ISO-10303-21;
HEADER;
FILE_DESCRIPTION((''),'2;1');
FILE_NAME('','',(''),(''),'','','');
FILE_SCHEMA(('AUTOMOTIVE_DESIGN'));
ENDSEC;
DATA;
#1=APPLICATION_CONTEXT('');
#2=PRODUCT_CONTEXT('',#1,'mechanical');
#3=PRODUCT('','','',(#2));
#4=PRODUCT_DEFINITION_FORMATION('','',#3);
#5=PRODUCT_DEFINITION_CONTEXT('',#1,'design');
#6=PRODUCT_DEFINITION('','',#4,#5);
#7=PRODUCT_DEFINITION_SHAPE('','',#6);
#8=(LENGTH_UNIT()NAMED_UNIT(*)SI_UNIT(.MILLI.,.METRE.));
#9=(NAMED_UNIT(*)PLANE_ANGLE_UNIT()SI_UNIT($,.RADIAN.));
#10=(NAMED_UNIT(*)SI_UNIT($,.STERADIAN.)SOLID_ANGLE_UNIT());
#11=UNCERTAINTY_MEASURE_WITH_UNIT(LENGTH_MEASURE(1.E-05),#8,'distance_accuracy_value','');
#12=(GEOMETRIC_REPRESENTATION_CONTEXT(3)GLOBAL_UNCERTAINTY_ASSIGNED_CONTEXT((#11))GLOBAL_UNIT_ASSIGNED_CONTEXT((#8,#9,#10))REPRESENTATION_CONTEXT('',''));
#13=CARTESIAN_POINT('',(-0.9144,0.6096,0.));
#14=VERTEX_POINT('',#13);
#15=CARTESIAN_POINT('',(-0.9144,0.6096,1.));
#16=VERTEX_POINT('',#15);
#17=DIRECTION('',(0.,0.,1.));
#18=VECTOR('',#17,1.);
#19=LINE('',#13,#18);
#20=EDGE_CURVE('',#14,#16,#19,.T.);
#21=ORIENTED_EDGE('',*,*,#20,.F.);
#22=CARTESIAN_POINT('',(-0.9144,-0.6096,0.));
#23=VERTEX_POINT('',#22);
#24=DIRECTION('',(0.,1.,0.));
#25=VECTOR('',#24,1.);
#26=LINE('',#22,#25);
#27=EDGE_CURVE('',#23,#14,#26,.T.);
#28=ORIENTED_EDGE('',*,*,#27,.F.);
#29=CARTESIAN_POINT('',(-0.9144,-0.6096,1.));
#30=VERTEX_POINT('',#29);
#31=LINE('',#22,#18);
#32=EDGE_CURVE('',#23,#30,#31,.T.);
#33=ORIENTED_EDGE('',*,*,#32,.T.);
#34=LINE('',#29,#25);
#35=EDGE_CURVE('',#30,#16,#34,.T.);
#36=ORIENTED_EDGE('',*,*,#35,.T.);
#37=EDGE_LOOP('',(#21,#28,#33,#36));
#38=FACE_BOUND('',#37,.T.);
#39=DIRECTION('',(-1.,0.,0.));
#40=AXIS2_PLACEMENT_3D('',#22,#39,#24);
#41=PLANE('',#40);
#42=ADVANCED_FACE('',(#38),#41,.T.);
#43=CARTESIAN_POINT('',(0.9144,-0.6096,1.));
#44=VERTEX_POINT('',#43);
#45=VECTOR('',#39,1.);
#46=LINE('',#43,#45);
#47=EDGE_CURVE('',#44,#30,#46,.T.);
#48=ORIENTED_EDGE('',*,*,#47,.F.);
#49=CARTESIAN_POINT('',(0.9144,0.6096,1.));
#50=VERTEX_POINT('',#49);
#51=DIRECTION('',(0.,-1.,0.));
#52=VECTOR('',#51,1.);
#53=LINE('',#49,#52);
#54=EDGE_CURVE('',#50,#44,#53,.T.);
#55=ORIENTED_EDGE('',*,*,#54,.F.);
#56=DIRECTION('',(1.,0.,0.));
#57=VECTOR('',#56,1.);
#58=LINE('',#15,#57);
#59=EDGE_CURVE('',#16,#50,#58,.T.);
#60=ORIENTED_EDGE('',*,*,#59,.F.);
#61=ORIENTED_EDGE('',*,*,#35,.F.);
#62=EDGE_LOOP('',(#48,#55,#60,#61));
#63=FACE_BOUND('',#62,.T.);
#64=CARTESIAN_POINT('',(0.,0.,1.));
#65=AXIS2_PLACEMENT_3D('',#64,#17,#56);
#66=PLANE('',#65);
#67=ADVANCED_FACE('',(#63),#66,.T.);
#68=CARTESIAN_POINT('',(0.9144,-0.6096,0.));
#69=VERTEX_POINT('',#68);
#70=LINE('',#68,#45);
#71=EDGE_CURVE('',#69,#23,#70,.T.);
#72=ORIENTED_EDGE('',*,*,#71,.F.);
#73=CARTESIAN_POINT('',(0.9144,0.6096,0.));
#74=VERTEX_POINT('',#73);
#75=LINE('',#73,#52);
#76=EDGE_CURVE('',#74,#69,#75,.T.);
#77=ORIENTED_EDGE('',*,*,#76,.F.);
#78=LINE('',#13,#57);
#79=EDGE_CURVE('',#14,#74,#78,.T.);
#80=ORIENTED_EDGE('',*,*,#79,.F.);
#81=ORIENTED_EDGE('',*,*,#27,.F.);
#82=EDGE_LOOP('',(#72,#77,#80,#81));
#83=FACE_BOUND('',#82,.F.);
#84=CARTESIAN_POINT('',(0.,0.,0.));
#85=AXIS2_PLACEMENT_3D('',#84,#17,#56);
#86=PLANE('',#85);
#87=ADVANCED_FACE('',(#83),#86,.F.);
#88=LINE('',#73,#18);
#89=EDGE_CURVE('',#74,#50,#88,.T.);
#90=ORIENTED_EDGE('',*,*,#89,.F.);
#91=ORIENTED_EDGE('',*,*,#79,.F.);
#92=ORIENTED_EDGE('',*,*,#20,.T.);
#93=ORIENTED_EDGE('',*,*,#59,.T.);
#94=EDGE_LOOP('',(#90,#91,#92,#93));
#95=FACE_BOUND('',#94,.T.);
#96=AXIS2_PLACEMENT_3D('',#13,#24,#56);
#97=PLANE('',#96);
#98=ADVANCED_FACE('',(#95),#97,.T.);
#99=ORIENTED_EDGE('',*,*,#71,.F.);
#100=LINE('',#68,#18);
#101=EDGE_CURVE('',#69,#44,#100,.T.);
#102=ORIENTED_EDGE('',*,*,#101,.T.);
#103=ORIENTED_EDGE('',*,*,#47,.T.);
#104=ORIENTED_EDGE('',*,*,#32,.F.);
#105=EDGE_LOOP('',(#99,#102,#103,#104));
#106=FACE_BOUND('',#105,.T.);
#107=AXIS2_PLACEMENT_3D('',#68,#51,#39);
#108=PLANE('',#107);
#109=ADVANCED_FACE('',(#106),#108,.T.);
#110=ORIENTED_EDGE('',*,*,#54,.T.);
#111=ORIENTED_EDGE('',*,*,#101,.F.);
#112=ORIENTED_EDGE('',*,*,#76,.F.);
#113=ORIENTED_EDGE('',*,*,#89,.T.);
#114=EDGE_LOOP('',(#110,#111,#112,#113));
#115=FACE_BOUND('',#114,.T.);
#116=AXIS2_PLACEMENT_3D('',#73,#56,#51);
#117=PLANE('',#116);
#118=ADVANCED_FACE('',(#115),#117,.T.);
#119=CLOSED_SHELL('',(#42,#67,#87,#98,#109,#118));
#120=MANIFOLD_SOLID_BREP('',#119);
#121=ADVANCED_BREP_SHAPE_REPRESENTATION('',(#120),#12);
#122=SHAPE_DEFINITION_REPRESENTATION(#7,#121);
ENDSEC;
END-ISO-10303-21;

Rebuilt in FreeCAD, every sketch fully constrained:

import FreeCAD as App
import Part
import Sketcher
Q = App.Units.Quantity

doc = App.newDocument("Part")
body = doc.addObject("PartDesign::Body", "Body")

sketch1 = body.newObject("Sketcher::SketchObject", "Sketch")
sketch1.AttachmentSupport = (doc.getObject("XY_Plane"), [""])
sketch1.MapMode = "FlatFace"
sketch1.addGeometry(Part.LineSegment(App.Vector(0.9, 0.6, 0), App.Vector(-0.9, 0.6, 0)), False)
sketch1.addGeometry(Part.LineSegment(App.Vector(-0.9, 0.6, 0), App.Vector(-0.9, -0.6, 0)), False)
sketch1.addGeometry(Part.LineSegment(App.Vector(-0.9, -0.6, 0), App.Vector(0.9, -0.6, 0)), False)
sketch1.addGeometry(Part.LineSegment(App.Vector(0.9, -0.6, 0), App.Vector(0.9, 0.6, 0)), False)
sketch1.addConstraint(Sketcher.Constraint("Coincident", 0, 2, 1, 1))
sketch1.addConstraint(Sketcher.Constraint("Coincident", 1, 2, 2, 1))
sketch1.addConstraint(Sketcher.Constraint("Coincident", 2, 2, 3, 1))
sketch1.addConstraint(Sketcher.Constraint("Coincident", 3, 2, 0, 1))
sketch1.addConstraint(Sketcher.Constraint("Horizontal", 0))
sketch1.addConstraint(Sketcher.Constraint("Vertical", 1))
sketch1.addConstraint(Sketcher.Constraint("Horizontal", 2))
sketch1.addConstraint(Sketcher.Constraint("Vertical", 3))
sketch1.addConstraint(Sketcher.Constraint("Symmetric", 0, 2, 2, 2, -1, 1))
sketch1.addConstraint(Sketcher.Constraint("DistanceX", 0, 2, 0, 1, Q("0.072 in")))
sketch1.addConstraint(Sketcher.Constraint("DistanceY", 1, 2, 1, 1, Q("0.048 in")))
pad1 = body.newObject("PartDesign::Pad", "Pad")
pad1.Profile = sketch1
pad1.Length = 1

doc.recompute()
